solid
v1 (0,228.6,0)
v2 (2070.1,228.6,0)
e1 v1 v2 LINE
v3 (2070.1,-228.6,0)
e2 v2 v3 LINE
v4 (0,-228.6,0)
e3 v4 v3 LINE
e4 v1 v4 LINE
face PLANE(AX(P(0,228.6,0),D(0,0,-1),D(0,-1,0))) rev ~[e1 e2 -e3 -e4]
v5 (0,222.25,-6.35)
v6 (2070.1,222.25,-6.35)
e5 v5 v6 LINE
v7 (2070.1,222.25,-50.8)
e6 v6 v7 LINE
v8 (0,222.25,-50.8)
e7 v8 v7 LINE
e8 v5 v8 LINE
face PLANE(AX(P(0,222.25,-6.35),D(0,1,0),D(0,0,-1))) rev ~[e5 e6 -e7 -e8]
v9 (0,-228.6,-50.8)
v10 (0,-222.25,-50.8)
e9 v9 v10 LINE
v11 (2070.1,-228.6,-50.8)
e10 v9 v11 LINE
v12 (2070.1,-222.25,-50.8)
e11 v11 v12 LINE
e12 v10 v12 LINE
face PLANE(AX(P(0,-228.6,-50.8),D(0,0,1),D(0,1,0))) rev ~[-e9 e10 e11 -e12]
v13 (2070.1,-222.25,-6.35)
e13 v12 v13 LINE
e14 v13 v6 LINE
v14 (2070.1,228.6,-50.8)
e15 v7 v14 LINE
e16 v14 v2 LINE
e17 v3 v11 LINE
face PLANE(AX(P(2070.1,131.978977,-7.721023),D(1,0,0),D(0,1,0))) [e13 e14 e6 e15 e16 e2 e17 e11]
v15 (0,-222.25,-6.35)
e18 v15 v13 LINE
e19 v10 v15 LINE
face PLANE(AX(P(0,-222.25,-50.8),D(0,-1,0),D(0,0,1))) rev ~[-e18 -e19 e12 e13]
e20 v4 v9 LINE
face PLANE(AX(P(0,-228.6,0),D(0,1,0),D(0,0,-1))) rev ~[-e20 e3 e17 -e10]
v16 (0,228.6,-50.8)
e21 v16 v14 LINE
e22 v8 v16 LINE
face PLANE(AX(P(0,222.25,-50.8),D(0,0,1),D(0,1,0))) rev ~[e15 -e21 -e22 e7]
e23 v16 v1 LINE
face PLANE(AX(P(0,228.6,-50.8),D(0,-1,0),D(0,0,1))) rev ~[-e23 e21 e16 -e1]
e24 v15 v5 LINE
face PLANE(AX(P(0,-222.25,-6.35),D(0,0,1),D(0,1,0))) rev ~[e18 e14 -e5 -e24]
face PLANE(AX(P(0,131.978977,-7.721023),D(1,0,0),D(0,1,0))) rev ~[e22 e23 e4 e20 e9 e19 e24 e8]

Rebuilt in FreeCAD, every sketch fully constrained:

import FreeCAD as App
import Part
import Sketcher
from FreeCAD import Vector
Q = App.Units.Quantity


def add_polygon(sketch, points):
    """Adds a closed chain of lines whose ends are joined by coincident constraints."""
    first, n = sketch.GeometryCount, len(points)
    for a, b in zip(points, points[1:] + points[:1]):
        sketch.addGeometry(Part.LineSegment(App.Vector(*a, 0), App.Vector(*b, 0)), False)
    for i in range(n):
        sketch.addConstraint(Sketcher.Constraint("Coincident", first + i, 2, first + (i + 1) % n, 1))

doc = App.newDocument("Part")
body = doc.addObject("PartDesign::Body", "Body")

# Sketch on YZ plane
sketch1 = body.newObject("Sketcher::SketchObject", "Sketch")
sketch1.AttachmentSupport = (doc.getObject("YZ_Plane"), [""])
sketch1.MapMode = "FlatFace"
add_polygon(sketch1, [(228.6, 0), (-228.6, 0), (-228.6, -50.8), (-222.25, -50.8), (-222.25, -6.35), (222.25, -6.35), (222.25, -50.8), (228.6, -50.8)])  # lines 0-7
sketch1.addConstraint([
    Sketcher.Constraint("Horizontal", 0),
    Sketcher.Constraint("Vertical", 1),
    Sketcher.Constraint("Horizontal", 2),
    Sketcher.Constraint("Vertical", 3),
    Sketcher.Constraint("Horizontal", 4),
    Sketcher.Constraint("Vertical", 5),
    Sketcher.Constraint("Horizontal", 6),
    Sketcher.Constraint("Vertical", 7),
    Sketcher.Constraint("Symmetric", 0, 2, 7, 2, -1, 1),
    Sketcher.Constraint("Symmetric", 2, 2, 5, 2, -2),
    Sketcher.Constraint("DistanceX", 0, 2, 0, 1, Q("18 in")),
    Sketcher.Constraint("DistanceY", 1, 2, 1, 1, Q("2 in")),
    Sketcher.Constraint("DistanceX", 4, 1, 4, 2, Q("17.5 in")),
    Sketcher.Constraint("DistanceY", 3, 1, 3, 2, Q("1.75 in")),
])
pad1 = body.newObject("PartDesign::Pad", "Pad")
pad1.Profile = sketch1
pad1.Length = Q("81.5 in")

doc.recompute()
